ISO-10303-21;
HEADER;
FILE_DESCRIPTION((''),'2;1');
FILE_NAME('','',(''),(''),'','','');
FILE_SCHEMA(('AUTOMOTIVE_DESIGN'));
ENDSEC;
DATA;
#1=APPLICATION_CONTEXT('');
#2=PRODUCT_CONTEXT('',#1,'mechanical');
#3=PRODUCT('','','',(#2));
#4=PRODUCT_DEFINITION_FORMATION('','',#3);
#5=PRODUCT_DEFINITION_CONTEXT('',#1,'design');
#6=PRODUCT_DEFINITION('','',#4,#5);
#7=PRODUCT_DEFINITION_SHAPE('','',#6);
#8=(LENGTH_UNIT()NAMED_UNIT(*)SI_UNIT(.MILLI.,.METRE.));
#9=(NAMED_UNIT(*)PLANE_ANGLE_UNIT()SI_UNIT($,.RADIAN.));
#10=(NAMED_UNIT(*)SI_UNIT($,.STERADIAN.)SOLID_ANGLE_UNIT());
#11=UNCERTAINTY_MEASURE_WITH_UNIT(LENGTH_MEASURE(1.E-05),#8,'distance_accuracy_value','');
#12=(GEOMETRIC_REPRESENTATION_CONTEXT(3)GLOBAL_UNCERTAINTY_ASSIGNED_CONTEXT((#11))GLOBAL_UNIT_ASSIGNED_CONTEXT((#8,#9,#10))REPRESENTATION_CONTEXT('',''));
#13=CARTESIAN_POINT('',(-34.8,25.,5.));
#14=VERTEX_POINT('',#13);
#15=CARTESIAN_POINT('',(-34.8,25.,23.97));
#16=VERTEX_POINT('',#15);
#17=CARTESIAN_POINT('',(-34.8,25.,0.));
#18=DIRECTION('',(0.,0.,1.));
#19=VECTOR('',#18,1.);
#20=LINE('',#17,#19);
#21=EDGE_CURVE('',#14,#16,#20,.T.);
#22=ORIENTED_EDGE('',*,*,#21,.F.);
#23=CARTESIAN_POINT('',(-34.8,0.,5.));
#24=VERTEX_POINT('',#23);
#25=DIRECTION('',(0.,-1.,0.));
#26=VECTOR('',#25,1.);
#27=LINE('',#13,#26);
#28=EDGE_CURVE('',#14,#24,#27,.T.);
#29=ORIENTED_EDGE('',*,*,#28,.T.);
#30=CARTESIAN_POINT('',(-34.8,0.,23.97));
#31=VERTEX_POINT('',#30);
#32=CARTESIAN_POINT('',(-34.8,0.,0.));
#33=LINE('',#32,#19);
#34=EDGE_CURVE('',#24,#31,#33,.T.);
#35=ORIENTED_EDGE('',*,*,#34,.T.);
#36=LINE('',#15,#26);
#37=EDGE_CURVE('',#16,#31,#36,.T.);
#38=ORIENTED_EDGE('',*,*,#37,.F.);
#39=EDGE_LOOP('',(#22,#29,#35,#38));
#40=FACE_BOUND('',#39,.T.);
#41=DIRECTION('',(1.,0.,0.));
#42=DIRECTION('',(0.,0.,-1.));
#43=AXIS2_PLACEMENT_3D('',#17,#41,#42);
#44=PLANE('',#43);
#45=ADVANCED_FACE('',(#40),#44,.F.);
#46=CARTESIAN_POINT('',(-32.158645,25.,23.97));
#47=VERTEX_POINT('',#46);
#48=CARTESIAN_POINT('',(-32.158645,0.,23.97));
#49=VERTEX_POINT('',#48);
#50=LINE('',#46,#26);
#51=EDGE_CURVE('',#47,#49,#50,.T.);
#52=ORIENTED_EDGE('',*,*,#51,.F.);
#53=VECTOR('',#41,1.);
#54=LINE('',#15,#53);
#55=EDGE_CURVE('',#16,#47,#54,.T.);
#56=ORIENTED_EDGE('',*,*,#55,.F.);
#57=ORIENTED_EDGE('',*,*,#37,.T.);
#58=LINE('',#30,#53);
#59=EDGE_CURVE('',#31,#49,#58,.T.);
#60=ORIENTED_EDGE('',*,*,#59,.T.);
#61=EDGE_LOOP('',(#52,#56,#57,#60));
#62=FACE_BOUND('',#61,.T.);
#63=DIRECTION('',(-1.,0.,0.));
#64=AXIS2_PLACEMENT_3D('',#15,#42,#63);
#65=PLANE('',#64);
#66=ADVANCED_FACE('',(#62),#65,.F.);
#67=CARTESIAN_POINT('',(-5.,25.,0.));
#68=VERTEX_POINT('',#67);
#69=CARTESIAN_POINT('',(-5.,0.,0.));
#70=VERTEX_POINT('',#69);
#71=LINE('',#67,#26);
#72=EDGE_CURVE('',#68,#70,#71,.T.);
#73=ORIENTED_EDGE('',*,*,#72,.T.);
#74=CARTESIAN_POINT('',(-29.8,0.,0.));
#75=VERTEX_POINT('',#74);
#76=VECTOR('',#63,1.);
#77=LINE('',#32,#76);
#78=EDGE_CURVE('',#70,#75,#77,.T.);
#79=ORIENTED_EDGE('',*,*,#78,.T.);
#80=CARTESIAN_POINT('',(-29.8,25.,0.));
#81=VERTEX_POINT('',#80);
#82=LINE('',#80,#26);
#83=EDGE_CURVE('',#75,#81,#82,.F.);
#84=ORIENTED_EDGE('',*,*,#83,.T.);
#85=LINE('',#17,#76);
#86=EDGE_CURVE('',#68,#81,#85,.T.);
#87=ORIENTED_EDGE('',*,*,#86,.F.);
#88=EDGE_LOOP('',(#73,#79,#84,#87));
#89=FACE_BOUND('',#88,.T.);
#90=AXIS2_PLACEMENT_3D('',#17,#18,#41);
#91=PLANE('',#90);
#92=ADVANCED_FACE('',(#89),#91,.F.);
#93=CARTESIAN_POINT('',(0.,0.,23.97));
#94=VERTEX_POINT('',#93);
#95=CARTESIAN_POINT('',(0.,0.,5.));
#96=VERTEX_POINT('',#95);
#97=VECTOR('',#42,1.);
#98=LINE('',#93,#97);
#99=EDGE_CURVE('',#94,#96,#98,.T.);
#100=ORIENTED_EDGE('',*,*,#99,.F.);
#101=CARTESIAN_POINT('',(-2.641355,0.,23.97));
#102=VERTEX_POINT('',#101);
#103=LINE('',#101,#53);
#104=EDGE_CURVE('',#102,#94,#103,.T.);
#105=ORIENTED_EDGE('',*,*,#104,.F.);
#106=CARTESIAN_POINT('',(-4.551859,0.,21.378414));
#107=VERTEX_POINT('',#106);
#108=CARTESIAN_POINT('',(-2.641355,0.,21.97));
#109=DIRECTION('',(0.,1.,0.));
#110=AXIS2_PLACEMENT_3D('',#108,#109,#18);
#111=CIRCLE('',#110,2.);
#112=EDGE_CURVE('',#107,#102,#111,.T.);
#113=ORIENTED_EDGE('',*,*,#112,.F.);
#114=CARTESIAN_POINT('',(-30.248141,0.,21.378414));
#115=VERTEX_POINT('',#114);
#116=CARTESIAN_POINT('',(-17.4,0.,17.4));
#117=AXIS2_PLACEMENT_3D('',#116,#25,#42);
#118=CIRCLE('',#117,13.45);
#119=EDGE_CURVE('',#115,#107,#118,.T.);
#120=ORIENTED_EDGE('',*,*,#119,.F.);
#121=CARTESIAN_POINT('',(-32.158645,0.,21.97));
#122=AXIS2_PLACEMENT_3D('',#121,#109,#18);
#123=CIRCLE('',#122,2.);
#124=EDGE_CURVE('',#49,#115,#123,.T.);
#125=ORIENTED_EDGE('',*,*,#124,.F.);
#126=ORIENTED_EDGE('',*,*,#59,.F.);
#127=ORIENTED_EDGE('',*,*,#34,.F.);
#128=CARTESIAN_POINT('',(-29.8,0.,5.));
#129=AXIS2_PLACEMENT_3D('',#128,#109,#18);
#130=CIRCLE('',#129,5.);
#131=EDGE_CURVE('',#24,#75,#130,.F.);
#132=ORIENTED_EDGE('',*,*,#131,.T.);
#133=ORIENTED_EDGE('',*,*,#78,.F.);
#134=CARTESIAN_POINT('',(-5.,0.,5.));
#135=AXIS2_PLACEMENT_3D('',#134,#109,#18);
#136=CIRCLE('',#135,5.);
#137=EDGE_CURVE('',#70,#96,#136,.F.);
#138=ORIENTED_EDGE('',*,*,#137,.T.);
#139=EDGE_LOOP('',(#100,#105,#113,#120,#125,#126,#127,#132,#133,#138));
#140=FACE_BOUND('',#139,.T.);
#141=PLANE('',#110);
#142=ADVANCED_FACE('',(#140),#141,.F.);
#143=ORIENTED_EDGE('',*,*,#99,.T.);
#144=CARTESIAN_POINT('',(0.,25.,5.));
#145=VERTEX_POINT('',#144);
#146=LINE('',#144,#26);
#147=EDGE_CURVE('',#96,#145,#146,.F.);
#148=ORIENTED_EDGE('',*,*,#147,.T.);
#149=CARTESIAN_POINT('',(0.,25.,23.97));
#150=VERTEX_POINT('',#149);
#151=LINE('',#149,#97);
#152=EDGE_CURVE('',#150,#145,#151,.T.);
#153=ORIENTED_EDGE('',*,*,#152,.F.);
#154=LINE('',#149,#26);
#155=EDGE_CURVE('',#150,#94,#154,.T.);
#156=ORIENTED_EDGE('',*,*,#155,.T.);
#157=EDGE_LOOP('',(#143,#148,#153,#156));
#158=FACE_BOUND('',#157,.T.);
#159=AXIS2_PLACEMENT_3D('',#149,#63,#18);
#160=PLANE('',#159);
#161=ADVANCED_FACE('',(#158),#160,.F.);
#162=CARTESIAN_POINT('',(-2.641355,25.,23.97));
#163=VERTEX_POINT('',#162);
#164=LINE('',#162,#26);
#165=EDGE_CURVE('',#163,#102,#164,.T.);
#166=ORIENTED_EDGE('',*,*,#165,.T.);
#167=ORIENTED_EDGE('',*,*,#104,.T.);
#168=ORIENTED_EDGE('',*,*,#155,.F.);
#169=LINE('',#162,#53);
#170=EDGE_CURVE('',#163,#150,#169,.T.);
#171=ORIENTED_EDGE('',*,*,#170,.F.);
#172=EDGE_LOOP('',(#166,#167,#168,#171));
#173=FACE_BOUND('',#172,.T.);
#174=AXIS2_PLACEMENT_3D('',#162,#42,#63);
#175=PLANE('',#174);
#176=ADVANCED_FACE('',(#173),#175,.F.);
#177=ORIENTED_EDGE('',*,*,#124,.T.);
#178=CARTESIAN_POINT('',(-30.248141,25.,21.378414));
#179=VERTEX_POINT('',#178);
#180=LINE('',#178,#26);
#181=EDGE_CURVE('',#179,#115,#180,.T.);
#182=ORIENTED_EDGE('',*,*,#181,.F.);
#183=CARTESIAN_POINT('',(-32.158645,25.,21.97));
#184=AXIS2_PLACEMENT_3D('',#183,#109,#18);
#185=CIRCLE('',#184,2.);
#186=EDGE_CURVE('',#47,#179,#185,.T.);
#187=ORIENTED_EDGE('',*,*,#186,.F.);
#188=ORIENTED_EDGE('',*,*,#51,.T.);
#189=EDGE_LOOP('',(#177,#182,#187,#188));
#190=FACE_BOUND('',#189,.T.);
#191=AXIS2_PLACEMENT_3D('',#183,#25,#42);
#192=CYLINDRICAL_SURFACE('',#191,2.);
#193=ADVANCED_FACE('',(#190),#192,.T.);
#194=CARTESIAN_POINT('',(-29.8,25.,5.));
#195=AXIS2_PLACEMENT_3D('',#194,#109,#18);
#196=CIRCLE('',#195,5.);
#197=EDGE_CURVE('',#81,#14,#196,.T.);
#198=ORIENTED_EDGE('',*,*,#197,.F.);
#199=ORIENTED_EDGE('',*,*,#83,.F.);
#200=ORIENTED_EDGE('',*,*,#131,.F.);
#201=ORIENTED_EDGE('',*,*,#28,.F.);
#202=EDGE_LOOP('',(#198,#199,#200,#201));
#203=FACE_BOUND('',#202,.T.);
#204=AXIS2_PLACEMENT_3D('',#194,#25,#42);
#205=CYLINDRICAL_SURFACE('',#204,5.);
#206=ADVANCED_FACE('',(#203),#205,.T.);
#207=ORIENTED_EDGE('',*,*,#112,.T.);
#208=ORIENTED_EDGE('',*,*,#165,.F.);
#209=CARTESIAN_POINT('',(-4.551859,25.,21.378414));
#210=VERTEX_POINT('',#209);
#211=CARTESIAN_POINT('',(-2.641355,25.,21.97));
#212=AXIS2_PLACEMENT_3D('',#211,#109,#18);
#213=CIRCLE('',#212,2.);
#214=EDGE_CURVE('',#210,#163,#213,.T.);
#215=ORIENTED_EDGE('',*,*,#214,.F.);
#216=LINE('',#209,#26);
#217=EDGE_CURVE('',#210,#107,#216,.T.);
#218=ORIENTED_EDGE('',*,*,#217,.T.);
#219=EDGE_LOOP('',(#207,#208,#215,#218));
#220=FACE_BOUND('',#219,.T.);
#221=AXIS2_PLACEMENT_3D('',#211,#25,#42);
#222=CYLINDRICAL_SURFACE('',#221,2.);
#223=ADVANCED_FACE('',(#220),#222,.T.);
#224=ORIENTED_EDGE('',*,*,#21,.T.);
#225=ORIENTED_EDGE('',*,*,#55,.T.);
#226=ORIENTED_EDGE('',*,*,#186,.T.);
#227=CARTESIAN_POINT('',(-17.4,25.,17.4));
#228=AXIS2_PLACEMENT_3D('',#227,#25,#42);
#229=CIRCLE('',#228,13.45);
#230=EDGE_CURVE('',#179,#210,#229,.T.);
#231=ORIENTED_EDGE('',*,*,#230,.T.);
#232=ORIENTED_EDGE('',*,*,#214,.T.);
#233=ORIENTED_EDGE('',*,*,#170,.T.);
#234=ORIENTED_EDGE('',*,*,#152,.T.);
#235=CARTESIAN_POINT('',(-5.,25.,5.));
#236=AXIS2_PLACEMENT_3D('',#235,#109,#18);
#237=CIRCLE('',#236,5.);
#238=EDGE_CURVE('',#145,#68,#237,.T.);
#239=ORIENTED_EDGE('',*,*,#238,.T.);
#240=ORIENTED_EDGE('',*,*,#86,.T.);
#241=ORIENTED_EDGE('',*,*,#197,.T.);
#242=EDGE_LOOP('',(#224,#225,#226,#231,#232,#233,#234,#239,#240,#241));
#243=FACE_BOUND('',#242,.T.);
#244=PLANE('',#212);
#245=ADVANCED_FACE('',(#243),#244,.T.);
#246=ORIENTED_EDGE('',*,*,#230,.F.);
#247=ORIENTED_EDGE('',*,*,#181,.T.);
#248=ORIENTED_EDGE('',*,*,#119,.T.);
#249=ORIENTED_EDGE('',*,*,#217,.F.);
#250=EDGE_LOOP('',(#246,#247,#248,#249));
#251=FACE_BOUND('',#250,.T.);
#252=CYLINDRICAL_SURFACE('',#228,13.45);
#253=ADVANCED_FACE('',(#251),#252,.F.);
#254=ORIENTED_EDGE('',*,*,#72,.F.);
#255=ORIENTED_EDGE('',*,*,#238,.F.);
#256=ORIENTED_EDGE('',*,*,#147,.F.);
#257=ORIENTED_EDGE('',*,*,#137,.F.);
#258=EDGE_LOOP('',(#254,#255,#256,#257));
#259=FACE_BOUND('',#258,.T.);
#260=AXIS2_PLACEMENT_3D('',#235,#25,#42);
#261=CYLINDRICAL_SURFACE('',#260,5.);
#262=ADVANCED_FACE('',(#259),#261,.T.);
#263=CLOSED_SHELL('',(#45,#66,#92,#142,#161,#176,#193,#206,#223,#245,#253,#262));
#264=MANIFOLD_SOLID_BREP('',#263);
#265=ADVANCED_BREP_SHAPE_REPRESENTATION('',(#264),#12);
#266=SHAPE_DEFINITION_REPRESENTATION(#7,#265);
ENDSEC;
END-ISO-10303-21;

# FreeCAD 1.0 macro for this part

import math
import FreeCAD as App
import Part
import Sketcher
from FreeCAD import Vector


def edges_at(feature, points):
    """Names of the edges that pass closest to the given points."""
    edges = feature.Shape.Edges
    near = lambda p: min(range(len(edges)), key=lambda i: edges[i].distToShape(Part.Vertex(*p))[0])
    return sorted({f"Edge{near(p) + 1}" for p in points})

doc = App.newDocument("Part")
body = doc.addObject("PartDesign::Body", "Body")

sketch1 = body.newObject("Sketcher::SketchObject", "Sketch")
sketch1.AttachmentSupport = (doc.getObject("XZ_Plane"), [""])
sketch1.MapMode = "FlatFace"
sketch1.addGeometry(Part.LineSegment(Vector(-34.8, 0, 0), Vector(-34.8, 24, 0)), False)
sketch1.addGeometry(Part.LineSegment(Vector(-34.8, 24, 0), Vector(-32.2, 24, 0)), False)
sketch1.addGeometry(Part.ArcOfCircle(Part.Circle(Vector(-32.2, 22, 0), Vector(0, 0, 1), 2), math.radians(-17), math.radians(90)), False)
sketch1.addGeometry(Part.ArcOfCircle(Part.Circle(Vector(-17.4, 17.4, 0), Vector(0, 0, 1), 13.4), math.radians(163), math.radians(377)), False)
sketch1.addGeometry(Part.ArcOfCircle(Part.Circle(Vector(-2.6, 22, 0), Vector(0, 0, 1), 2), math.radians(90), math.radians(197)), False)
sketch1.addGeometry(Part.LineSegment(Vector(-2.6, 24, 0), Vector(0, 24, 0)), False)
sketch1.addGeometry(Part.LineSegment(Vector(0, 24, 0), Vector(0, 0, 0)), False)
sketch1.addGeometry(Part.LineSegment(Vector(0, 0, 0), Vector(-34.8, 0, 0)), False)
sketch1.addConstraint(Sketcher.Constraint("Coincident", 0, 2, 1, 1))
sketch1.addConstraint(Sketcher.Constraint("Tangent", 1, 2, 2, 2))
sketch1.addConstraint(Sketcher.Constraint("Tangent", 2, 1, 3, 1))
sketch1.addConstraint(Sketcher.Constraint("Tangent", 3, 2, 4, 2))
sketch1.addConstraint(Sketcher.Constraint("Tangent", 4, 1, 5, 1))
sketch1.addConstraint(Sketcher.Constraint("Coincident", 5, 2, 6, 1))
sketch1.addConstraint(Sketcher.Constraint("Coincident", 6, 2, 7, 1))
sketch1.addConstraint(Sketcher.Constraint("Coincident", 7, 2, 0, 1))
sketch1.addConstraint(Sketcher.Constraint("Vertical", 0))
sketch1.addConstraint(Sketcher.Constraint("Horizontal", 1))
sketch1.addConstraint(Sketcher.Constraint("Horizontal", 5))
sketch1.addConstraint(Sketcher.Constraint("Vertical", 6))
sketch1.addConstraint(Sketcher.Constraint("Horizontal", 7))
sketch1.addConstraint(Sketcher.Constraint("Coincident", 6, 2, -1, 1))
sketch1.addConstraint(Sketcher.Constraint("Equal", 2, 4))
sketch1.addConstraint(Sketcher.Constraint("Horizontal", 2, 3, 4, 3))
sketch1.addConstraint(Sketcher.Constraint("Equal", 1, 5))
sketch1.addConstraint(Sketcher.Constraint("Radius", 2, 2.0))
sketch1.addConstraint(Sketcher.Constraint("Radius", 3, 13.45))
sketch1.addConstraint(Sketcher.Constraint("DistanceX", 7, 2, 7, 1, 34.8))
sketch1.addConstraint(Sketcher.Constraint("DistanceY", 0, 1, 0, 2, 23.97))
sketch1.addConstraint(Sketcher.Constraint("DistanceY", -1, 1, 3, 3, 17.4))
pad1 = body.newObject("PartDesign::Pad", "Pad")
pad1.Profile = sketch1
pad1.Length = 25
pad1.Reversed = True
doc.recompute()

fillet = body.newObject("PartDesign::Fillet", "Fillet")
fillet.Base = (pad1, edges_at(pad1, [(0, 12.5, 0), (-34.8, 12.5, 0)]))
fillet.Radius = 5

doc.recompute()
